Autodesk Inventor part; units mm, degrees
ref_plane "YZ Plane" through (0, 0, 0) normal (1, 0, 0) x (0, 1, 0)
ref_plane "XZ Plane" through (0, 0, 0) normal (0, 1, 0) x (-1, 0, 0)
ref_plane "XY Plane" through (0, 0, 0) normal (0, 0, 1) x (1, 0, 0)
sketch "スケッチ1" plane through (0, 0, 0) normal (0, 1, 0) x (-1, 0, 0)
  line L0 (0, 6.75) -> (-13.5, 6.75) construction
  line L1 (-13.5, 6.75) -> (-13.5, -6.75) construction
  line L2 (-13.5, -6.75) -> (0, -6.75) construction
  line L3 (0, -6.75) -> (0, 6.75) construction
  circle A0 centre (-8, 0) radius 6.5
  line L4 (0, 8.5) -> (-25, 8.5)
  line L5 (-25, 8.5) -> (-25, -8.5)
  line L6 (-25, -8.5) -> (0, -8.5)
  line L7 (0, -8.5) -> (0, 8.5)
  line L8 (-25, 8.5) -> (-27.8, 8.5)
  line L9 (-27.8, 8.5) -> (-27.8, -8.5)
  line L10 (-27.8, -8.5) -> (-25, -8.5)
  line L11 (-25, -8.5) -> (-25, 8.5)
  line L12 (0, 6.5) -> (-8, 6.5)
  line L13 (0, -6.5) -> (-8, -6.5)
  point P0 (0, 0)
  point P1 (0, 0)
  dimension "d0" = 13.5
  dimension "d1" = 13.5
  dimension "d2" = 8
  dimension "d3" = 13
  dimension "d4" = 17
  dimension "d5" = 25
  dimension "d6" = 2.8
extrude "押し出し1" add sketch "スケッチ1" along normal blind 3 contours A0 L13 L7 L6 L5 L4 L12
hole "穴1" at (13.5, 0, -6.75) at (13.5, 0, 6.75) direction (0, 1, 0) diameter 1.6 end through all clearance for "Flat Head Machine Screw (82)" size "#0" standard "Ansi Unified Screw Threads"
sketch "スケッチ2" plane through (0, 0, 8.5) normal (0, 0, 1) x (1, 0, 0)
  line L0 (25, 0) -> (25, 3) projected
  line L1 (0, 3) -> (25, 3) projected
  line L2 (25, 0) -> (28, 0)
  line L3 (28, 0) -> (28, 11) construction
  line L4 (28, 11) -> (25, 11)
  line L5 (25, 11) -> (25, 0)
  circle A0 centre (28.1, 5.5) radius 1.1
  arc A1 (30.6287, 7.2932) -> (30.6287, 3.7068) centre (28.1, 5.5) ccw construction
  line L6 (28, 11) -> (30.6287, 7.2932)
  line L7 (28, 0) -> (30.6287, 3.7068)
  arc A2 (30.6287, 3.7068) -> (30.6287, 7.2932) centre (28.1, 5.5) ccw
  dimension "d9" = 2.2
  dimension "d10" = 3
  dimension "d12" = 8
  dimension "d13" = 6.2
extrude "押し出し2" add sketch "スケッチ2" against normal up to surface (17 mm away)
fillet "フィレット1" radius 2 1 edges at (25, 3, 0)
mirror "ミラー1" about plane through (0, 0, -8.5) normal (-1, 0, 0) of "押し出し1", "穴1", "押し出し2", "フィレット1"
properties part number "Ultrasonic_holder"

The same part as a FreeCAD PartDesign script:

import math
import FreeCAD as App
import Part
import Sketcher
from FreeCAD import Vector


def edges_at(feature, points):
    """Names of the edges that pass closest to the given points."""
    edges = feature.Shape.Edges
    near = lambda p: min(range(len(edges)), key=lambda i: edges[i].distToShape(Part.Vertex(*p))[0])
    return sorted({f"Edge{near(p) + 1}" for p in points})

doc = App.newDocument("Part")
body = doc.addObject("PartDesign::Body", "Body")

sketch1 = body.newObject("Sketcher::SketchObject", "Sketch")
sketch1.AttachmentSupport = (doc.getObject("XZ_Plane"), [""])
sketch1.MapMode = "FlatFace"
sketch1.addGeometry(Part.ArcOfCircle(Part.Circle(Vector(8, 0, 0), Vector(0, 0, 1), 6.5), math.radians(-90), math.radians(90)), False)
sketch1.addGeometry(Part.LineSegment(Vector(8, 6.5, 0), Vector(0, 6.5, 0)), False)
sketch1.addGeometry(Part.LineSegment(Vector(0, 6.5, 0), Vector(0, 8.5, 0)), False)
sketch1.addGeometry(Part.LineSegment(Vector(0, 8.5, 0), Vector(25, 8.5, 0)), False)
sketch1.addGeometry(Part.LineSegment(Vector(25, 8.5, 0), Vector(25, -8.5, 0)), False)
sketch1.addGeometry(Part.LineSegment(Vector(25, -8.5, 0), Vector(0, -8.5, 0)), False)
sketch1.addGeometry(Part.LineSegment(Vector(0, -8.5, 0), Vector(0, -6.5, 0)), False)
sketch1.addGeometry(Part.LineSegment(Vector(0, -6.5, 0), Vector(8, -6.5, 0)), False)
sketch1.addConstraint(Sketcher.Constraint("Tangent", 0, 2, 1, 1))
sketch1.addConstraint(Sketcher.Constraint("Coincident", 1, 2, 2, 1))
sketch1.addConstraint(Sketcher.Constraint("Coincident", 2, 2, 3, 1))
sketch1.addConstraint(Sketcher.Constraint("Coincident", 3, 2, 4, 1))
sketch1.addConstraint(Sketcher.Constraint("Coincident", 4, 2, 5, 1))
sketch1.addConstraint(Sketcher.Constraint("Coincident", 5, 2, 6, 1))
sketch1.addConstraint(Sketcher.Constraint("Coincident", 6, 2, 7, 1))
sketch1.addConstraint(Sketcher.Constraint("Tangent", 7, 2, 0, 1))
sketch1.addConstraint(Sketcher.Constraint("Horizontal", 1))
sketch1.addConstraint(Sketcher.Constraint("Vertical", 2))
sketch1.addConstraint(Sketcher.Constraint("Horizontal", 3))
sketch1.addConstraint(Sketcher.Constraint("Vertical", 4))
sketch1.addConstraint(Sketcher.Constraint("Horizontal", 5))
sketch1.addConstraint(Sketcher.Constraint("Vertical", 6))
sketch1.addConstraint(Sketcher.Constraint("Horizontal", 7))
sketch1.addConstraint(Sketcher.Constraint("Symmetric", 2, 2, 5, 2, -1, 1))
sketch1.addConstraint(Sketcher.Constraint("Symmetric", 1, 2, 6, 2, -1))
sketch1.addConstraint(Sketcher.Constraint("Radius", 0, 6.5))
sketch1.addConstraint(Sketcher.Constraint("DistanceX", 1, 2, 1, 1, 8.0))
sketch1.addConstraint(Sketcher.Constraint("DistanceX", 3, 1, 3, 2, 25.0))
sketch1.addConstraint(Sketcher.Constraint("DistanceY", 4, 2, 4, 1, 17.0))
pad1 = body.newObject("PartDesign::Pad", "Pad")
pad1.Profile = sketch1
pad1.Length = 3
pad1.Reversed = True

sketch2 = body.newObject("Sketcher::SketchObject", "Sketch001")
sketch2.AttachmentSupport = (doc.getObject("XZ_Plane"), [""])
sketch2.MapMode = "FlatFace"
sketch2.addGeometry(Part.Circle(Vector(13.5, -6.8, 0), Vector(0, 0, 1), 0.8), False)
sketch2.addGeometry(Part.Circle(Vector(13.5, 6.8, 0), Vector(0, 0, 1), 0.8), False)
sketch2.addConstraint(Sketcher.Constraint("Equal", 0, 1))
sketch2.addConstraint(Sketcher.Constraint("Symmetric", 0, 3, 1, 3, -1))
sketch2.addConstraint(Sketcher.Constraint("Diameter", 0, 1.6))
sketch2.addConstraint(Sketcher.Constraint("DistanceX", -1, 1, 0, 3, 13.5))
sketch2.addConstraint(Sketcher.Constraint("DistanceY", 0, 3, 1, 3, 13.5))
doc.recompute()
hole = body.newObject("PartDesign::Hole", "Hole")
hole.Profile = sketch2
hole.ThreadType = "None"
hole.Diameter = 1.6
hole.DepthType = "ThroughAll"

sketch3 = body.newObject("Sketcher::SketchObject", "Sketch002")
sketch3.AttachmentSupport = (doc.getObject("XY_Plane"), [""])
sketch3.MapMode = "FlatFace"
sketch3.AttachmentOffset = App.Placement(Vector(0, 0, 8.5), App.Rotation())
sketch3.addGeometry(Part.LineSegment(Vector(25, 11, 0), Vector(25, 0, 0)), False)
sketch3.addGeometry(Part.LineSegment(Vector(25, 0, 0), Vector(28, 0, 0)), False)
sketch3.addGeometry(Part.LineSegment(Vector(28, 0, 0), Vector(30.6, 3.7, 0)), False)
sketch3.addGeometry(Part.ArcOfCircle(Part.Circle(Vector(28.1, 5.5, 0), Vector(0, 0, 1), 3.1), math.radians(-35), math.radians(35)), False)
sketch3.addGeometry(Part.LineSegment(Vector(30.6, 7.3, 0), Vector(28, 11, 0)), False)
sketch3.addGeometry(Part.LineSegment(Vector(28, 11, 0), Vector(25, 11, 0)), False)
sketch3.addGeometry(Part.Circle(Vector(28.1, 5.5, 0), Vector(0, 0, 1), 1.1), False)
sketch3.addConstraint(Sketcher.Constraint("Coincident", 0, 2, 1, 1))
sketch3.addConstraint(Sketcher.Constraint("Coincident", 1, 2, 2, 1))
sketch3.addConstraint(Sketcher.Constraint("Tangent", 2, 2, 3, 1))
sketch3.addConstraint(Sketcher.Constraint("Tangent", 3, 2, 4, 1))
sketch3.addConstraint(Sketcher.Constraint("Coincident", 4, 2, 5, 1))
sketch3.addConstraint(Sketcher.Constraint("Coincident", 5, 2, 0, 1))
sketch3.addConstraint(Sketcher.Constraint("Vertical", 0))
sketch3.addConstraint(Sketcher.Constraint("Horizontal", 1))
sketch3.addConstraint(Sketcher.Constraint("Horizontal", 5))
sketch3.addConstraint(Sketcher.Constraint("Coincident", 6, 3, 3, 3))
sketch3.addConstraint(Sketcher.Constraint("PointOnObject", 0, 2, -1))
sketch3.addConstraint(Sketcher.Constraint("Vertical", 2, 2, 3, 2))
sketch3.addConstraint(Sketcher.Constraint("Vertical", 1, 2, 4, 2))
sketch3.addConstraint(Sketcher.Constraint("Diameter", 6, 2.2))
sketch3.addConstraint(Sketcher.Constraint("Radius", 3, 3.1))
sketch3.addConstraint(Sketcher.Constraint("DistanceX", 1, 1, 1, 2, 3.0))
sketch3.addConstraint(Sketcher.Constraint("DistanceY", 0, 2, 0, 1, 11.0))
sketch3.addConstraint(Sketcher.Constraint("DistanceX", -1, 1, 0, 2, 25.0))
sketch3.addConstraint(Sketcher.Constraint("DistanceX", -1, 1, 3, 3, 28.1))
pad2 = body.newObject("PartDesign::Pad", "Pad001")
pad2.Profile = sketch3
pad2.Length = 17
pad2.Reversed = True
doc.recompute()

fillet = body.newObject("PartDesign::Fillet", "Fillet")
fillet.Base = (pad2, edges_at(pad2, [(25, 3, 0)]))
fillet.Radius = 2
doc.recompute()

mirrored = body.newObject("PartDesign::Mirrored", "Mirrored")
mirrored.Originals = [pad1, hole, pad2, fillet]
mirrored.MirrorPlane = (doc.getObject("YZ_Plane"), [""])
body.Tip = mirrored

doc.recompute()
